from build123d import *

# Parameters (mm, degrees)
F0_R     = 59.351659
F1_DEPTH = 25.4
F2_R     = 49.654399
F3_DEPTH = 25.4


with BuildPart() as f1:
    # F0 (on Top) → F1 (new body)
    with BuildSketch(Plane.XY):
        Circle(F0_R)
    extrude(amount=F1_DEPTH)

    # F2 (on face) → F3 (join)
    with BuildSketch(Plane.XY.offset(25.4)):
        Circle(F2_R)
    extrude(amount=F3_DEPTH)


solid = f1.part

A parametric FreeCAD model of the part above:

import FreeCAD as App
import Part
import Sketcher
Q = App.Units.Quantity

doc = App.newDocument("Part")
body = doc.addObject("PartDesign::Body", "Body")

# Sketch on XY plane
sketch1 = body.newObject("Sketcher::SketchObject", "Sketch")
sketch1.AttachmentSupport = (doc.getObject("XY_Plane"), [""])
sketch1.MapMode = "FlatFace"
sketch1.addGeometry(Part.Circle(App.Vector(0, 0, 0), App.Vector(0, 0, 1), 59.351659), False)
sketch1.addConstraint([
    Sketcher.Constraint("Coincident", 0, 3, -1, 1),
    Sketcher.Constraint("Diameter", 0, 118.703318),
])
pad1 = body.newObject("PartDesign::Pad", "Pad")
pad1.Profile = sketch1
pad1.Length = Q("1 in")

# Sketch on XY plane
sketch2 = body.newObject("Sketcher::SketchObject", "Sketch001")
sketch2.AttachmentSupport = (doc.getObject("XY_Plane"), [""])
sketch2.MapMode = "FlatFace"
sketch2.AttachmentOffset = App.Placement(App.Vector(0, 0, 1 * 25.4), App.Rotation())
sketch2.addGeometry(Part.Circle(App.Vector(0, 0, 0), App.Vector(0, 0, 1), 49.654399), False)
sketch2.addConstraint([
    Sketcher.Constraint("Coincident", 0, 3, -1, 1),
    Sketcher.Constraint("Diameter", 0, 99.308798),
])
pad2 = body.newObject("PartDesign::Pad", "Pad001")
pad2.Profile = sketch2
pad2.Length = Q("1 in")

doc.recompute()
